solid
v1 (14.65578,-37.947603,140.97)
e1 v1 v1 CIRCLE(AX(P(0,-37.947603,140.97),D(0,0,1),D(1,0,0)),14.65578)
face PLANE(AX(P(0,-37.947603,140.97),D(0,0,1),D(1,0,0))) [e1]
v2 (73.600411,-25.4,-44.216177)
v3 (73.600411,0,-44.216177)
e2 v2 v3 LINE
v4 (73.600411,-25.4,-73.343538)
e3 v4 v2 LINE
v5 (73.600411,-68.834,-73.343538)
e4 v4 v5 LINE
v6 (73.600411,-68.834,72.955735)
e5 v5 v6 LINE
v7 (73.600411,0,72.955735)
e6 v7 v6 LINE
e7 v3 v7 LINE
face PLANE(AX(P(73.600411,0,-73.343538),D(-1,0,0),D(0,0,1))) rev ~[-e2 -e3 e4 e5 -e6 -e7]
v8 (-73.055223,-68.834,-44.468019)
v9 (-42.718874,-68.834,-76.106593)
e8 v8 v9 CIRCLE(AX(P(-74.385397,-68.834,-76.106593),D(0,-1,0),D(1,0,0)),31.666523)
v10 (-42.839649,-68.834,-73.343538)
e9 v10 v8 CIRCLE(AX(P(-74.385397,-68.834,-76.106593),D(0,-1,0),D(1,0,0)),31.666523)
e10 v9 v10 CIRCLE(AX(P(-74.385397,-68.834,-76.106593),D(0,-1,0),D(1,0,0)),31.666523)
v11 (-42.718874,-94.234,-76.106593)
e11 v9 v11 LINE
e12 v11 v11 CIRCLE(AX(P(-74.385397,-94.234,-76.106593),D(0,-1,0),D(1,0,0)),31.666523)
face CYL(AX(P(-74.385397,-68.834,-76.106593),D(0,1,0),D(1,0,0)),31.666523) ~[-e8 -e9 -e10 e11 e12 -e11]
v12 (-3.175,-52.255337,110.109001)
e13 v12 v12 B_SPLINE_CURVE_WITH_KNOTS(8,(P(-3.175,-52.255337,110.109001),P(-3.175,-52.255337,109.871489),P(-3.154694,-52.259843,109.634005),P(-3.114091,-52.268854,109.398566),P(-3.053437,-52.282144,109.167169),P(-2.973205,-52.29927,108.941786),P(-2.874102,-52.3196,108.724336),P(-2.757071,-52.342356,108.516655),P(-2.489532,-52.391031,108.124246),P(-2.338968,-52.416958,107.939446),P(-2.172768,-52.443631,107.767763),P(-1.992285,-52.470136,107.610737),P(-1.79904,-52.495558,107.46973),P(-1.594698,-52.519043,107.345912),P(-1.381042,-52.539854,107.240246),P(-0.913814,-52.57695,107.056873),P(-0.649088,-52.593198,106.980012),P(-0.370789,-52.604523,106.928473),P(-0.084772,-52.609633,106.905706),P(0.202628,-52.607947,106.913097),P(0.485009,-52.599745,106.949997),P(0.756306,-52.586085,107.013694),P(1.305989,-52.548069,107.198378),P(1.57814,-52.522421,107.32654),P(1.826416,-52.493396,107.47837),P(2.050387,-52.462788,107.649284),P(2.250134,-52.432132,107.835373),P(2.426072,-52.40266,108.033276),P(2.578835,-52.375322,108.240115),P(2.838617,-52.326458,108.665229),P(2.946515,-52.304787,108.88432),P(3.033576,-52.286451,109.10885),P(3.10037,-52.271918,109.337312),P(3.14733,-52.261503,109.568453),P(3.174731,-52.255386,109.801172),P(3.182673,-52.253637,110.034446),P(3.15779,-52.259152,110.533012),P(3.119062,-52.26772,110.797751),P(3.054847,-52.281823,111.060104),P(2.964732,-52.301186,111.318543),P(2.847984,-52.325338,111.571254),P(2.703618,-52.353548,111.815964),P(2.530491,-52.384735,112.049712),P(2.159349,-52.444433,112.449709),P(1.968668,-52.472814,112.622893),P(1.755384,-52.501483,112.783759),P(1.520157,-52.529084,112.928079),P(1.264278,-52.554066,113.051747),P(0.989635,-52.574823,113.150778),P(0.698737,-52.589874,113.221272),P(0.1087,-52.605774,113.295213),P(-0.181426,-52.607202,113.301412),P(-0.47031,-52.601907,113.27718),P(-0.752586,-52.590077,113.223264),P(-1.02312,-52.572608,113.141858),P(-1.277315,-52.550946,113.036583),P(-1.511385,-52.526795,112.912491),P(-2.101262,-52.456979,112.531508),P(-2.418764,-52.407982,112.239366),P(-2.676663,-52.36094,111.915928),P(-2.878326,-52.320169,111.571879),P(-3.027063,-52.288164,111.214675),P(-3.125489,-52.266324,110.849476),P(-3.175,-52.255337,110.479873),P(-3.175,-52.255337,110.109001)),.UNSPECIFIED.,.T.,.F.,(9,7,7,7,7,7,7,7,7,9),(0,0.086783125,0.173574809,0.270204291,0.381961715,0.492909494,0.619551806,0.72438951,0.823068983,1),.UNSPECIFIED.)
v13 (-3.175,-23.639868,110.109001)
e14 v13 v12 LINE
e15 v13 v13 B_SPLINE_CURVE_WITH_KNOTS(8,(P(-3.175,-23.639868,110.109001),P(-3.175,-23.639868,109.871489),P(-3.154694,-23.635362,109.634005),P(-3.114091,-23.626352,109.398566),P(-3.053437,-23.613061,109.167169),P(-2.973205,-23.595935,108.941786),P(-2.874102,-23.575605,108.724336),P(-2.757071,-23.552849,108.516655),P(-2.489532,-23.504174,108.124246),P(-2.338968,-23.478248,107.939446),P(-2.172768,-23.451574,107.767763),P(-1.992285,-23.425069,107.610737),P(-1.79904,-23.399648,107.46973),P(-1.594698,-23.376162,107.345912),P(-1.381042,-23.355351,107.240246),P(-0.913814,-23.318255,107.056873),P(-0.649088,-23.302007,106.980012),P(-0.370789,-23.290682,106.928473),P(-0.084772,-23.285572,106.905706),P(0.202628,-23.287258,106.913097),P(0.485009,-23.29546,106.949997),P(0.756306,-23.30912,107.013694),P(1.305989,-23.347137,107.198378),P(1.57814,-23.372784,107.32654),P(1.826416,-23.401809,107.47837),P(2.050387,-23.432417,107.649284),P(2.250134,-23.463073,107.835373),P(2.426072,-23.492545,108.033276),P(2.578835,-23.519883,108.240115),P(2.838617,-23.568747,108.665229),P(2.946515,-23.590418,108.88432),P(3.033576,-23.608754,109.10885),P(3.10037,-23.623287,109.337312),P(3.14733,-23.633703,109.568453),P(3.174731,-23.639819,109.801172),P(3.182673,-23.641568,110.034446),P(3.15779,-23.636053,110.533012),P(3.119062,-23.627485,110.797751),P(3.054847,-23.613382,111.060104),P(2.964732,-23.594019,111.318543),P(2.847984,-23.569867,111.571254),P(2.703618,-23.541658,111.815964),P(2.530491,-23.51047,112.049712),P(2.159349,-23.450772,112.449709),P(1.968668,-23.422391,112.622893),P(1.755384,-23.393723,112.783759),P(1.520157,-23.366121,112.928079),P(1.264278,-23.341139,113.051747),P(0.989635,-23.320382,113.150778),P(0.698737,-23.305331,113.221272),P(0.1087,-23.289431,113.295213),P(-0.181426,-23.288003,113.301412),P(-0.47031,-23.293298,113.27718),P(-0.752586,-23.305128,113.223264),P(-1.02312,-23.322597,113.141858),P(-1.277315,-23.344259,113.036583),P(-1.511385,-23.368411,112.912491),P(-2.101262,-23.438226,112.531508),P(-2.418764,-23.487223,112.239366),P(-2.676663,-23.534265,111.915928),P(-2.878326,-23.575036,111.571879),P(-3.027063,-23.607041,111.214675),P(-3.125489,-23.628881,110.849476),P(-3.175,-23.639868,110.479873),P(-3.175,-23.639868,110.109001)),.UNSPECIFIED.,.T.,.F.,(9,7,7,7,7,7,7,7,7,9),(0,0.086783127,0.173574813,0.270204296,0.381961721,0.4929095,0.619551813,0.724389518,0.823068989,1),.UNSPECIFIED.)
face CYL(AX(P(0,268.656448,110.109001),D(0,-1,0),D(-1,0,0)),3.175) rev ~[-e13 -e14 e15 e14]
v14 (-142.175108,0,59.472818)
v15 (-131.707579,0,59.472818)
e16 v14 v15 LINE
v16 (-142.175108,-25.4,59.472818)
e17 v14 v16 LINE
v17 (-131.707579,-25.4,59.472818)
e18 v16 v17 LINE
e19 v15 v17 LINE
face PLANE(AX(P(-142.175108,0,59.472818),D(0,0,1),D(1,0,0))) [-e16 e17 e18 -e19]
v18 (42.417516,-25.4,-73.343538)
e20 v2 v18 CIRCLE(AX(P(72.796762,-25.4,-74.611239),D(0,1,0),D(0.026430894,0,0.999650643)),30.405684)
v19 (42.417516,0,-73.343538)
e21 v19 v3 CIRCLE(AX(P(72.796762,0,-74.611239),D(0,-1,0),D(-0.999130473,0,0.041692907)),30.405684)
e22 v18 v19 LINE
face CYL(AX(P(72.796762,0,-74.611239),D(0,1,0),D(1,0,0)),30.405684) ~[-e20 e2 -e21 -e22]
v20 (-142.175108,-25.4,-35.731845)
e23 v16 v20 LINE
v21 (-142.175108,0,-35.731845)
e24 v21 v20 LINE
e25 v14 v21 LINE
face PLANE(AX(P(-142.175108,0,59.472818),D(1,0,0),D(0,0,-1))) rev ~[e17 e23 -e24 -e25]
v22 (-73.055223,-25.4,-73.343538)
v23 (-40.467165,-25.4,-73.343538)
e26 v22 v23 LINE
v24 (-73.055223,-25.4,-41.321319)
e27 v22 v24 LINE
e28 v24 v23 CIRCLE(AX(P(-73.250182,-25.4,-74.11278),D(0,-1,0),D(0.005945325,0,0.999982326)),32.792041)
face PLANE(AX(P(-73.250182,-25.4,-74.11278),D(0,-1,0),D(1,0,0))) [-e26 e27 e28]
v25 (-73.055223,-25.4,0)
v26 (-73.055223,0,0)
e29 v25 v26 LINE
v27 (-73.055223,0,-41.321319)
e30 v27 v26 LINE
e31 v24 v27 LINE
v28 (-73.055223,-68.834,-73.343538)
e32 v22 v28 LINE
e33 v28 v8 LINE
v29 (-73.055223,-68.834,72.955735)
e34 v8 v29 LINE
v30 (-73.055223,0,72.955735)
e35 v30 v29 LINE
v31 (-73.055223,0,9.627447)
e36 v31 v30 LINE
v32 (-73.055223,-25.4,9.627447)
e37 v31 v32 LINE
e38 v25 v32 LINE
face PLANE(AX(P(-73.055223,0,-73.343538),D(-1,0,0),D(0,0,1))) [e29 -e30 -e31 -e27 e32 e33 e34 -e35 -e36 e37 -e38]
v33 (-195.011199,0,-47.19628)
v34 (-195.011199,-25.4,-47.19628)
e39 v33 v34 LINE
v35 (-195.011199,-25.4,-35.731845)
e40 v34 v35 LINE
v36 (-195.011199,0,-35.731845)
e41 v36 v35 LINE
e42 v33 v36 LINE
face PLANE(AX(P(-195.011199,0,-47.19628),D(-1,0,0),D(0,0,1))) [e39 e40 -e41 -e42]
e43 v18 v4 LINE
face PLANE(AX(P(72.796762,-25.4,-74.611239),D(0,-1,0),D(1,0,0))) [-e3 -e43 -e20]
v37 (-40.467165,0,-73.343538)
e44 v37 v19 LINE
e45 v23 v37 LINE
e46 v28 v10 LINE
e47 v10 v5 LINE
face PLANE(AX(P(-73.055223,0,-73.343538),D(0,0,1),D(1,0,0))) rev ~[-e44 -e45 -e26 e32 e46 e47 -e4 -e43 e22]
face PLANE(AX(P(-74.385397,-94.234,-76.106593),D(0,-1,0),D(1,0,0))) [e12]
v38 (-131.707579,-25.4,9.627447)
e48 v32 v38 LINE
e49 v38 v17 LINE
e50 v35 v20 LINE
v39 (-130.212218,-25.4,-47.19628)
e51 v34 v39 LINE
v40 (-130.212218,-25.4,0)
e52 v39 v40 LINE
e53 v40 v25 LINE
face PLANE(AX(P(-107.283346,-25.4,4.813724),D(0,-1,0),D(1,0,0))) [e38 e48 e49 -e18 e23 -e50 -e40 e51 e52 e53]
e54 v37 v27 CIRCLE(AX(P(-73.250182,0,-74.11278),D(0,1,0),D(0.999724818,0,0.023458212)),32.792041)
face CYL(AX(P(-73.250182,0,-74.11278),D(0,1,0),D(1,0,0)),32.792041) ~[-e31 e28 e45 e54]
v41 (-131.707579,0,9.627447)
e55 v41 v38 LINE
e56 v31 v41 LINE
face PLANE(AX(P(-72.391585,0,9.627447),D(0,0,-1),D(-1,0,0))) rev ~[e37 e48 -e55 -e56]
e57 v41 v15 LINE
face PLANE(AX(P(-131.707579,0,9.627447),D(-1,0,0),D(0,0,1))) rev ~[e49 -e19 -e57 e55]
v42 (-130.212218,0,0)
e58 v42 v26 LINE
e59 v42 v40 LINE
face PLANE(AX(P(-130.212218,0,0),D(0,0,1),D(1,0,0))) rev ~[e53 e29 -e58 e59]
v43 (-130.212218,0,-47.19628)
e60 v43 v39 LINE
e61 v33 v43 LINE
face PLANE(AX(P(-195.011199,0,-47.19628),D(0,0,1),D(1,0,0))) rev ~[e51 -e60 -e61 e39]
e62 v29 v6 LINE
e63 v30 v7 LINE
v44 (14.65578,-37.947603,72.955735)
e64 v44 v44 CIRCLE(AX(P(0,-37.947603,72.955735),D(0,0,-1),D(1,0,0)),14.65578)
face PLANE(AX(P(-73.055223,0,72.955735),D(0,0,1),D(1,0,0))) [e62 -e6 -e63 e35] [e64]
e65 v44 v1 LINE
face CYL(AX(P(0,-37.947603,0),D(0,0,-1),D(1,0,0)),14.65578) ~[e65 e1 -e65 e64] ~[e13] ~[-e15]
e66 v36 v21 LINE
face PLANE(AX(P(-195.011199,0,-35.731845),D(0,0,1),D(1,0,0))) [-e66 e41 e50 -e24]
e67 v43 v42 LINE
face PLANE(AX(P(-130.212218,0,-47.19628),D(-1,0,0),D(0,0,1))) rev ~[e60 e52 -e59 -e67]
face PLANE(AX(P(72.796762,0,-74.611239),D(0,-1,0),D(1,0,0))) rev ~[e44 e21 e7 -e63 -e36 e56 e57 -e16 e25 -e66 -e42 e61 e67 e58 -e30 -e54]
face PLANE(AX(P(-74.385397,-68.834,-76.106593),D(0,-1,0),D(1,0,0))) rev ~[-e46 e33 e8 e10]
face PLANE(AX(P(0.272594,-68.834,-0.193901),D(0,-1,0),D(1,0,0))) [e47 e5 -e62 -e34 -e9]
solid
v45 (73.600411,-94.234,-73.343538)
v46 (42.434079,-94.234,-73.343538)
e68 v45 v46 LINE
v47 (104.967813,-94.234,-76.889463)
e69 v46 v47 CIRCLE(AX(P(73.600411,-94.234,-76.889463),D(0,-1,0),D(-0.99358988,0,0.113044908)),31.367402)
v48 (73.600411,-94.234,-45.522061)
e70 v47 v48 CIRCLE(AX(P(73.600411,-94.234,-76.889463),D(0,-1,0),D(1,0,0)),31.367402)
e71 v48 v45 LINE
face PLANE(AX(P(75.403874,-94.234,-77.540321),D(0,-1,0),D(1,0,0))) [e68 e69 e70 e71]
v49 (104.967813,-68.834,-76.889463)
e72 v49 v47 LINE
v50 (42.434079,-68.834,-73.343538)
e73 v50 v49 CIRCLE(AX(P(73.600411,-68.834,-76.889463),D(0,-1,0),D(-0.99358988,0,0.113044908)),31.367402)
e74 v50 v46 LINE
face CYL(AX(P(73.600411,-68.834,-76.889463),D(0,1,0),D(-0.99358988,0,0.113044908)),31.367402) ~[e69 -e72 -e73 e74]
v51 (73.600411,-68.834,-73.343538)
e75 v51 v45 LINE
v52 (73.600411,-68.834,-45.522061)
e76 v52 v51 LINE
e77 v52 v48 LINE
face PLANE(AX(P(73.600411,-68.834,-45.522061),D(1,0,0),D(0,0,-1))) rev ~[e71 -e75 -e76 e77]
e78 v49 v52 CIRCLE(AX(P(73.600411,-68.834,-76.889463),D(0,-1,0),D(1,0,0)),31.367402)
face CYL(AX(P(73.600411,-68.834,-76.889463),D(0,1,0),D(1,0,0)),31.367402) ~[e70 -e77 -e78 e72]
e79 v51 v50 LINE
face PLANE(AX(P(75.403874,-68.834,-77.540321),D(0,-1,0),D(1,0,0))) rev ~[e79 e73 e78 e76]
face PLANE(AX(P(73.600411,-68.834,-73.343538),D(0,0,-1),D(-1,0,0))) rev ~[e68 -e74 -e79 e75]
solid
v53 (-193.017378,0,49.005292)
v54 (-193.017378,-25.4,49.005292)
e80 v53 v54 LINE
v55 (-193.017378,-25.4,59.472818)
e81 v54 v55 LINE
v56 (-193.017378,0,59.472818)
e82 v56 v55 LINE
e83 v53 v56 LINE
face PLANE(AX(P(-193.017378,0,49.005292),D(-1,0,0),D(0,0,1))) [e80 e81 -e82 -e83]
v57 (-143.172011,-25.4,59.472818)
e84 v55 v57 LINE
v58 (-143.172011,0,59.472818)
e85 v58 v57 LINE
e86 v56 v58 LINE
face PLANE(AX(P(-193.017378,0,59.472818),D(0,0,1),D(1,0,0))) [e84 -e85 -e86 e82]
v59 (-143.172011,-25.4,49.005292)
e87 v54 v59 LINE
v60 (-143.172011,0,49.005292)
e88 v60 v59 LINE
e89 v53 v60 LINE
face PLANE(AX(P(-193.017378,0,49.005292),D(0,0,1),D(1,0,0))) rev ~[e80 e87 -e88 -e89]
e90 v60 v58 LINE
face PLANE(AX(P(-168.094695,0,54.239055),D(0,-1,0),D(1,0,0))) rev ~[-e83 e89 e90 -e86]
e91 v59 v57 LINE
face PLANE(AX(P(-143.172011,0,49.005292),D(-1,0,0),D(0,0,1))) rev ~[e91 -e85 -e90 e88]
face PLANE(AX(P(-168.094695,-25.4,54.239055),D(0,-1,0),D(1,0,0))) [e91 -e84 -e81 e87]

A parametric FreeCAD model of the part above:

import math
import FreeCAD as App
import Part
import Sketcher
Q = App.Units.Quantity


def add_polygon(sketch, points):
    """Adds a closed chain of lines whose ends are joined by coincident constraints."""
    first, n = sketch.GeometryCount, len(points)
    for a, b in zip(points, points[1:] + points[:1]):
        sketch.addGeometry(Part.LineSegment(App.Vector(*a, 0), App.Vector(*b, 0)), False)
    for i in range(n):
        sketch.addConstraint(Sketcher.Constraint("Coincident", first + i, 2, first + (i + 1) % n, 1))

doc = App.newDocument("Part")
body = doc.addObject("PartDesign::Body", "Body")

sketch1 = body.newObject("Sketcher::SketchObject", "Sketch")
sketch1.AttachmentSupport = (doc.getObject("XZ_Plane"), [""])
sketch1.MapMode = "FlatFace"
add_polygon(sketch1, [(-73, 73), (-73, -73), (74, -73), (74, 73)])
sketch1.addConstraint([
    Sketcher.Constraint("Vertical", 0),
    Sketcher.Constraint("Horizontal", 1),
    Sketcher.Constraint("Vertical", 2),
    Sketcher.Constraint("Horizontal", 3),
    Sketcher.Constraint("DistanceX", 1, 1, 1, 2, Q("146.655634 mm")),
    Sketcher.Constraint("DistanceY", 0, 2, 0, 1, Q("146.299273 mm")),
    Sketcher.Constraint("DistanceX", -1, 1, 1, 2, Q("73.600411 mm")),
    Sketcher.Constraint("DistanceY", 0, 2, -1, 1, Q("73.343538 mm")),
])
pad1 = body.newObject("PartDesign::Pad", "Pad")
pad1.Profile = sketch1
pad1.Length = Q("2.71 in")

sketch2 = body.newObject("Sketcher::SketchObject", "Sketch001")
sketch2.AttachmentSupport = (doc.getObject("XY_Plane"), [""])
sketch2.MapMode = "FlatFace"
sketch2.addGeometry(Part.Circle(App.Vector(0, -38, 0), App.Vector(0, 0, 1), 15), False)
sketch2.addConstraint([
    Sketcher.Constraint("PointOnObject", 0, 3, -2),
    Sketcher.Constraint("Diameter", 0, Q("29.311561 mm")),
    Sketcher.Constraint("DistanceY", 0, 3, -1, 1, Q("1.4940001 in")),
])
pad2 = body.newObject("PartDesign::Pad", "Pad001")
pad2.Profile = sketch2
pad2.Length = Q("5.55 in")

sketch3 = body.newObject("Sketcher::SketchObject", "Sketch002")
sketch3.AttachmentSupport = (doc.getObject("XZ_Plane"), [""])
sketch3.MapMode = "FlatFace"
sketch3.addGeometry(Part.Circle(App.Vector(0, 110.1, 0), App.Vector(0, 0, 1), 3.2), False)
sketch3.addConstraint([
    Sketcher.Constraint("PointOnObject", 0, 3, -2),
    Sketcher.Constraint("Diameter", 0, Q("0.25 in")),
    Sketcher.Constraint("DistanceY", -1, 1, 0, 3, Q("4.3350001 in")),
])
doc.recompute()
hole = body.newObject("PartDesign::Hole", "Hole")
hole.Profile = sketch3
hole.ThreadType = "None"
hole.Diameter = Q("0.25 in")
hole.DepthType = "ThroughAll"
hole.Reversed = True

sketch4 = body.newObject("Sketcher::SketchObject", "Sketch003")
sketch4.AttachmentSupport = (doc.getObject("XZ_Plane"), [""])
sketch4.MapMode = "FlatFace"
sketch4.AttachmentOffset = App.Placement(App.Vector(0, 0, 2.71 * 25.4), App.Rotation())
sketch4.addGeometry(Part.Circle(App.Vector(-74, -76, 0), App.Vector(0, 0, 1), 32), False)
sketch4.addConstraint([
    Sketcher.Constraint("Diameter", 0, Q("63.333047 mm")),
    Sketcher.Constraint("DistanceX", 0, 3, -1, 1, Q("74.385397 mm")),
    Sketcher.Constraint("DistanceY", 0, 3, -1, 1, Q("76.106593 mm")),
])
pad3 = body.newObject("PartDesign::Pad", "Pad002")
pad3.Profile = sketch4
pad3.Length = Q("1 in")

sketch5 = body.newObject("Sketcher::SketchObject", "Sketch004")
sketch5.AttachmentSupport = (doc.getObject("XZ_Plane"), [""])
sketch5.MapMode = "FlatFace"
sketch5.addGeometry([
    Part.Circle(App.Vector(73, -75, 0), App.Vector(0, 0, 1), 30),
    Part.Circle(App.Vector(-73, -74, 0), App.Vector(0, 0, 1), 33),
], False)
sketch5.addConstraint([
    Sketcher.Constraint("Diameter", 0, Q("60.811369 mm")),
    Sketcher.Constraint("Diameter", 1, Q("65.584081 mm")),
    Sketcher.Constraint("DistanceX", -1, 1, 0, 3, Q("72.796762 mm")),
    Sketcher.Constraint("DistanceY", 0, 3, -1, 1, Q("74.611239 mm")),
    Sketcher.Constraint("DistanceX", 1, 3, -1, 1, Q("73.250182 mm")),
    Sketcher.Constraint("DistanceY", 1, 3, -1, 1, Q("74.11278 mm")),
])
pad4 = body.newObject("PartDesign::Pad", "Pad003")
pad4.Profile = sketch5
pad4.Length = Q("1 in")

sketch6 = body.newObject("Sketcher::SketchObject", "Sketch005")
sketch6.AttachmentSupport = (doc.getObject("XZ_Plane"), [""])
sketch6.MapMode = "FlatFace"
add_polygon(sketch6, [(-72, 0), (-72, 10), (-132, 10), (-132, 59), (-142, 59), (-142, -36), (-195, -36), (-195, -47), (-130, -47), (-130, 0)])
sketch6.addConstraint([
    Sketcher.Constraint("Vertical", 0),
    Sketcher.Constraint("Horizontal", 1),
    Sketcher.Constraint("Vertical", 2),
    Sketcher.Constraint("Horizontal", 3),
    Sketcher.Constraint("Vertical", 4),
    Sketcher.Constraint("Horizontal", 5),
    Sketcher.Constraint("Vertical", 6),
    Sketcher.Constraint("Horizontal", 7),
    Sketcher.Constraint("Vertical", 8),
    Sketcher.Constraint("Horizontal", 9),
    Sketcher.Constraint("PointOnObject", 8, 2, -1),
    Sketcher.Constraint("DistanceX", 3, 2, 3, 1, Q("10.467529 mm")),
    Sketcher.Constraint("DistanceX", 5, 2, 5, 1, Q("52.83609 mm")),
    Sketcher.Constraint("DistanceX", 7, 1, 7, 2, Q("64.798981 mm")),
    Sketcher.Constraint("DistanceY", 2, 1, 2, 2, Q("49.84537 mm")),
    Sketcher.Constraint("DistanceY", 8, 1, 8, 2, Q("47.19628 mm")),
    Sketcher.Constraint("DistanceX", 5, 2, -1, 1, Q("195.011199 mm")),
    Sketcher.Constraint("DistanceY", 6, 2, 3, 2, Q("106.669098 mm")),
    Sketcher.Constraint("DistanceX", 1, 2, 1, 1, Q("59.315994 mm")),
    Sketcher.Constraint("DistanceY", 4, 2, 4, 1, Q("95.204663 mm")),
])
pad5 = body.newObject("PartDesign::Pad", "Pad004")
pad5.Profile = sketch6
pad5.Length = Q("1 in")
body2 = doc.addObject("PartDesign::Body", "Body001")

sketch7 = body2.newObject("Sketcher::SketchObject", "Sketch006")
sketch7.AttachmentSupport = (doc.getObject("XZ_Plane001"), [""])
sketch7.MapMode = "FlatFace"
sketch7.AttachmentOffset = App.Placement(App.Vector(0, 0, 2.71 * 25.4), App.Rotation())
sketch7.addGeometry([
    Part.ArcOfCircle(Part.Circle(App.Vector(74, -77, 0), App.Vector(0, 0, 1), 31), math.radians(174), math.radians(360)),
    Part.ArcOfCircle(Part.Circle(App.Vector(74, -77, 0), App.Vector(0, 0, 1), 31), math.radians(0), math.radians(90)),
    Part.LineSegment(App.Vector(74, -46, 0), App.Vector(74, -73, 0)),
    Part.LineSegment(App.Vector(74, -73, 0), App.Vector(42, -73, 0)),
], False)
sketch7.addConstraint([
    Sketcher.Constraint("Tangent", 0, 2, 1, 1),
    Sketcher.Constraint("Coincident", 1, 2, 2, 1),
    Sketcher.Constraint("Coincident", 2, 2, 3, 1),
    Sketcher.Constraint("Coincident", 3, 2, 0, 1),
    Sketcher.Constraint("Vertical", 2),
    Sketcher.Constraint("Horizontal", 3),
    Sketcher.Constraint("Equal", 0, 1),
    Sketcher.Constraint("Horizontal", 1, 3, 0, 2),
    Sketcher.Constraint("Vertical", 0, 3, 1, 2),
    Sketcher.Constraint("Radius", 0, Q("31.367402 mm")),
    Sketcher.Constraint("DistanceX", 3, 2, 3, 1, Q("31.166333 mm")),
    Sketcher.Constraint("DistanceX", -1, 1, 0, 3, Q("73.600411 mm")),
    Sketcher.Constraint("DistanceY", 1, 2, -1, 1, Q("45.522061 mm")),
])
pad6 = body2.newObject("PartDesign::Pad", "Pad005")
pad6.Profile = sketch7
pad6.Length = Q("1 in")
body3 = doc.addObject("PartDesign::Body", "Body002")

sketch8 = body3.newObject("Sketcher::SketchObject", "Sketch007")
sketch8.AttachmentSupport = (doc.getObject("XZ_Plane002"), [""])
sketch8.MapMode = "FlatFace"
add_polygon(sketch8, [(-193, 59), (-193, 49), (-143, 49), (-143, 59)])
sketch8.addConstraint([
    Sketcher.Constraint("Vertical", 0),
    Sketcher.Constraint("Horizontal", 1),
    Sketcher.Constraint("Vertical", 2),
    Sketcher.Constraint("Horizontal", 3),
    Sketcher.Constraint("DistanceX", 1, 1, 1, 2, Q("49.845368 mm")),
    Sketcher.Constraint("DistanceY", 0, 2, 0, 1, Q("10.467526 mm")),
    Sketcher.Constraint("DistanceX", 0, 2, -1, 1, Q("193.017378 mm")),
    Sketcher.Constraint("DistanceY", -1, 1, 0, 2, Q("49.005292 mm")),
])
pad7 = body3.newObject("PartDesign::Pad", "Pad006")
pad7.Profile = sketch8
pad7.Length = Q("1 in")

doc.recompute()
